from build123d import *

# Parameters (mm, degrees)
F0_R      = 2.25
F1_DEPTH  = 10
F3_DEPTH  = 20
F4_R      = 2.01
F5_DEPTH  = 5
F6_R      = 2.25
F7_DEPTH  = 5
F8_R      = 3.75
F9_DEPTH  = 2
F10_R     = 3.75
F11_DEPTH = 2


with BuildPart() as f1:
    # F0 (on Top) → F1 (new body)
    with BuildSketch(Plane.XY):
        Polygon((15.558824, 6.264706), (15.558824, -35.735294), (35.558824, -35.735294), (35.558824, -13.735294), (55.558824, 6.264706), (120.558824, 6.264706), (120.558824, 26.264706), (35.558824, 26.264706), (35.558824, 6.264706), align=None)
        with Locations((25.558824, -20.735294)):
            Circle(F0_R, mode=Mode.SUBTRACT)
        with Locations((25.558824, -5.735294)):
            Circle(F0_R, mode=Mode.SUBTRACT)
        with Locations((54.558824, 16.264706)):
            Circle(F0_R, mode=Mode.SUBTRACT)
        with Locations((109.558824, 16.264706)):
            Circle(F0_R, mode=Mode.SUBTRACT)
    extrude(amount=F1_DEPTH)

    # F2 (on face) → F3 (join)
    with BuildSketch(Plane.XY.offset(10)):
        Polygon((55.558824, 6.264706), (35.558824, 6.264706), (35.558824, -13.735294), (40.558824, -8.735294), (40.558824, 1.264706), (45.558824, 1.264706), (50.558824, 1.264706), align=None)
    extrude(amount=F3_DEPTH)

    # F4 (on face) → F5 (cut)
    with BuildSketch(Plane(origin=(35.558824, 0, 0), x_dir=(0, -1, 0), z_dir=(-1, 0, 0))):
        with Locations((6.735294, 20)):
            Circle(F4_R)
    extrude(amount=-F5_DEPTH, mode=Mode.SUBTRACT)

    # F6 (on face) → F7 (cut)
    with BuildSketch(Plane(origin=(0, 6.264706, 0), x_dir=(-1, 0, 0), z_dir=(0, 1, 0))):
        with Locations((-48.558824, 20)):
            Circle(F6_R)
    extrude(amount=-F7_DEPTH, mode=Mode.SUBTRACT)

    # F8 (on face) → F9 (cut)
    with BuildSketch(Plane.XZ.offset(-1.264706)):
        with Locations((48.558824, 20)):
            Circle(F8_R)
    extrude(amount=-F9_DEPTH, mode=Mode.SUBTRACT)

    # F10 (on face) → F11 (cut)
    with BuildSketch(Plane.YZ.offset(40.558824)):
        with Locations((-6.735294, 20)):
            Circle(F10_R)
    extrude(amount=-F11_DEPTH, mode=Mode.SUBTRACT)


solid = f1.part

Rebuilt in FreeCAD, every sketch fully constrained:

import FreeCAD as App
import Part
import Sketcher


def add_polygon(sketch, points):
    """Adds a closed chain of lines whose ends are joined by coincident constraints."""
    first, n = sketch.GeometryCount, len(points)
    for a, b in zip(points, points[1:] + points[:1]):
        sketch.addGeometry(Part.LineSegment(App.Vector(*a, 0), App.Vector(*b, 0)), False)
    for i in range(n):
        sketch.addConstraint(Sketcher.Constraint("Coincident", first + i, 2, first + (i + 1) % n, 1))

doc = App.newDocument("Part")
body = doc.addObject("PartDesign::Body", "Body")

sketch1 = body.newObject("Sketcher::SketchObject", "Sketch")
sketch1.AttachmentSupport = (doc.getObject("XY_Plane"), [""])
sketch1.MapMode = "FlatFace"
add_polygon(sketch1, [(15.558824, 6.264706), (15.558824, -35.735294), (35.558824, -35.735294), (35.558824, -13.735294), (55.558824, 6.264706), (120.558824, 6.264706), (120.558824, 26.264706), (35.558824, 26.264706), (35.558824, 6.264706)])
sketch1.addGeometry(Part.Circle(App.Vector(25.558824, -20.735294, 0), App.Vector(0, 0, 1), 2.25), False)
sketch1.addGeometry(Part.Circle(App.Vector(25.558824, -5.735294, 0), App.Vector(0, 0, 1), 2.25), False)
sketch1.addGeometry(Part.Circle(App.Vector(54.558824, 16.264706, 0), App.Vector(0, 0, 1), 2.25), False)
sketch1.addGeometry(Part.Circle(App.Vector(109.558824, 16.264706, 0), App.Vector(0, 0, 1), 2.25), False)
sketch1.addConstraint([
    Sketcher.Constraint("Vertical", 0),
    Sketcher.Constraint("Horizontal", 1),
    Sketcher.Constraint("Vertical", 2),
    Sketcher.Constraint("Horizontal", 4),
    Sketcher.Constraint("Vertical", 5),
    Sketcher.Constraint("Horizontal", 6),
    Sketcher.Constraint("Vertical", 7),
    Sketcher.Constraint("Horizontal", 8),
    Sketcher.Constraint("Equal", 9, 10),
    Sketcher.Constraint("Equal", 10, 11),
    Sketcher.Constraint("Equal", 11, 12),
    Sketcher.Constraint("Horizontal", 11, 3, 12, 3),
    Sketcher.Constraint("Horizontal", 4, 2, 7, 2),
    Sketcher.Constraint("Vertical", 9, 3, 10, 3),
    Sketcher.Constraint("Vertical", 2, 2, 6, 2),
    Sketcher.Constraint("Equal", 8, 5),
    Sketcher.Constraint("Diameter", 9, 4.5),
    Sketcher.Constraint("DistanceX", 1, 1, 1, 2, 20.0),
    Sketcher.Constraint("DistanceX", 4, 1, 4, 2, 65.0),
    Sketcher.Constraint("DistanceX", 6, 2, 6, 1, 85.0),
    Sketcher.Constraint("DistanceY", 0, 2, 0, 1, 42.0),
    Sketcher.Constraint("DistanceY", 2, 1, 2, 2, 22.0),
    Sketcher.Constraint("DistanceY", 9, 3, 10, 3, 15.0),
    Sketcher.Constraint("DistanceX", 10, 3, 11, 3, 29.0),
    Sketcher.Constraint("DistanceY", 10, 3, 11, 3, 22.0),
    Sketcher.Constraint("DistanceX", 11, 3, 12, 3, 55.0),
    Sketcher.Constraint("DistanceX", 0, 2, 9, 3, 10.0),
    Sketcher.Constraint("DistanceY", 0, 2, 9, 3, 15.0),
    Sketcher.Constraint("DistanceX", -1, 1, 9, 3, 25.558824),
    Sketcher.Constraint("DistanceY", 9, 3, -1, 1, 20.735294),
])
pad1 = body.newObject("PartDesign::Pad", "Pad")
pad1.Profile = sketch1
pad1.Length = 10

sketch2 = body.newObject("Sketcher::SketchObject", "Sketch001")
sketch2.AttachmentSupport = (doc.getObject("XY_Plane"), [""])
sketch2.MapMode = "FlatFace"
sketch2.AttachmentOffset = App.Placement(App.Vector(0, 0, 10), App.Rotation())
add_polygon(sketch2, [(55.558824, 6.264706), (35.558824, 6.264706), (35.558824, -13.735294), (40.558824, -8.735294), (40.558824, 1.264706), (50.558824, 1.264706)])
sketch2.addConstraint([
    Sketcher.Constraint("Horizontal", 0),
    Sketcher.Constraint("Vertical", 1),
    Sketcher.Constraint("Vertical", 3),
    Sketcher.Constraint("Horizontal", 4),
    Sketcher.Constraint("Parallel", 2, 5),
    Sketcher.Constraint("Equal", 0, 1),
    Sketcher.Constraint("Equal", 4, 3),
    Sketcher.Constraint("Equal", 2, 5),
    Sketcher.Constraint("DistanceX", 0, 2, 0, 1, 20.0),
    Sketcher.Constraint("DistanceX", 4, 1, 4, 2, 10.0),
    Sketcher.Constraint("DistanceX", -1, 1, 0, 2, 35.558824),
    Sketcher.Constraint("DistanceY", -1, 1, 0, 2, 6.264706),
])
pad2 = body.newObject("PartDesign::Pad", "Pad001")
pad2.Profile = sketch2
pad2.Length = 20

sketch3 = body.newObject("Sketcher::SketchObject", "Sketch002")
sketch3.AttachmentSupport = (doc.getObject("YZ_Plane"), [""])
sketch3.MapMode = "FlatFace"
sketch3.AttachmentOffset = App.Placement(App.Vector(0, 0, 35.558824), App.Rotation())
sketch3.addGeometry(Part.Circle(App.Vector(-6.735294, 20, 0), App.Vector(0, 0, 1), 2.01), False)
sketch3.addConstraint([
    Sketcher.Constraint("Diameter", 0, 4.02),
    Sketcher.Constraint("DistanceY", -1, 1, 0, 3, 20.0),
    Sketcher.Constraint("DistanceX", 0, 3, -1, 1, 6.735294),
])
pocket1 = body.newObject("PartDesign::Pocket", "Pocket")
pocket1.Profile = sketch3
pocket1.Length = 5
pocket1.Reversed = True

sketch4 = body.newObject("Sketcher::SketchObject", "Sketch003")
sketch4.AttachmentSupport = (doc.getObject("XZ_Plane"), [""])
sketch4.MapMode = "FlatFace"
sketch4.AttachmentOffset = App.Placement(App.Vector(0, 0, -6.264706), App.Rotation())
sketch4.addGeometry(Part.Circle(App.Vector(48.558824, 20, 0), App.Vector(0, 0, 1), 2.25), False)
sketch4.addConstraint([
    Sketcher.Constraint("Diameter", 0, 4.5),
    Sketcher.Constraint("DistanceY", -1, 1, 0, 3, 20.0),
    Sketcher.Constraint("DistanceX", -1, 1, 0, 3, 48.558824),
])
pocket2 = body.newObject("PartDesign::Pocket", "Pocket001")
pocket2.Profile = sketch4
pocket2.Length = 5
pocket2.Reversed = True

sketch5 = body.newObject("Sketcher::SketchObject", "Sketch004")
sketch5.AttachmentSupport = (doc.getObject("XZ_Plane"), [""])
sketch5.MapMode = "FlatFace"
sketch5.AttachmentOffset = App.Placement(App.Vector(0, 0, -1.264706), App.Rotation())
sketch5.addGeometry(Part.Circle(App.Vector(48.558824, 20, 0), App.Vector(0, 0, 1), 3.75), False)
sketch5.addConstraint([
    Sketcher.Constraint("Diameter", 0, 7.5),
    Sketcher.Constraint("DistanceY", -1, 1, 0, 3, 20.0),
    Sketcher.Constraint("DistanceX", -1, 1, 0, 3, 48.558824),
])
pocket3 = body.newObject("PartDesign::Pocket", "Pocket002")
pocket3.Profile = sketch5
pocket3.Length = 2

sketch6 = body.newObject("Sketcher::SketchObject", "Sketch005")
sketch6.AttachmentSupport = (doc.getObject("YZ_Plane"), [""])
sketch6.MapMode = "FlatFace"
sketch6.AttachmentOffset = App.Placement(App.Vector(0, 0, 40.558824), App.Rotation())
sketch6.addGeometry(Part.Circle(App.Vector(-6.735294, 20, 0), App.Vector(0, 0, 1), 3.75), False)
sketch6.addConstraint([
    Sketcher.Constraint("Diameter", 0, 7.5),
    Sketcher.Constraint("DistanceY", -1, 1, 0, 3, 20.0),
    Sketcher.Constraint("DistanceX", 0, 3, -1, 1, 6.735294),
])
pocket4 = body.newObject("PartDesign::Pocket", "Pocket003")
pocket4.Profile = sketch6
pocket4.Length = 2

doc.recompute()
